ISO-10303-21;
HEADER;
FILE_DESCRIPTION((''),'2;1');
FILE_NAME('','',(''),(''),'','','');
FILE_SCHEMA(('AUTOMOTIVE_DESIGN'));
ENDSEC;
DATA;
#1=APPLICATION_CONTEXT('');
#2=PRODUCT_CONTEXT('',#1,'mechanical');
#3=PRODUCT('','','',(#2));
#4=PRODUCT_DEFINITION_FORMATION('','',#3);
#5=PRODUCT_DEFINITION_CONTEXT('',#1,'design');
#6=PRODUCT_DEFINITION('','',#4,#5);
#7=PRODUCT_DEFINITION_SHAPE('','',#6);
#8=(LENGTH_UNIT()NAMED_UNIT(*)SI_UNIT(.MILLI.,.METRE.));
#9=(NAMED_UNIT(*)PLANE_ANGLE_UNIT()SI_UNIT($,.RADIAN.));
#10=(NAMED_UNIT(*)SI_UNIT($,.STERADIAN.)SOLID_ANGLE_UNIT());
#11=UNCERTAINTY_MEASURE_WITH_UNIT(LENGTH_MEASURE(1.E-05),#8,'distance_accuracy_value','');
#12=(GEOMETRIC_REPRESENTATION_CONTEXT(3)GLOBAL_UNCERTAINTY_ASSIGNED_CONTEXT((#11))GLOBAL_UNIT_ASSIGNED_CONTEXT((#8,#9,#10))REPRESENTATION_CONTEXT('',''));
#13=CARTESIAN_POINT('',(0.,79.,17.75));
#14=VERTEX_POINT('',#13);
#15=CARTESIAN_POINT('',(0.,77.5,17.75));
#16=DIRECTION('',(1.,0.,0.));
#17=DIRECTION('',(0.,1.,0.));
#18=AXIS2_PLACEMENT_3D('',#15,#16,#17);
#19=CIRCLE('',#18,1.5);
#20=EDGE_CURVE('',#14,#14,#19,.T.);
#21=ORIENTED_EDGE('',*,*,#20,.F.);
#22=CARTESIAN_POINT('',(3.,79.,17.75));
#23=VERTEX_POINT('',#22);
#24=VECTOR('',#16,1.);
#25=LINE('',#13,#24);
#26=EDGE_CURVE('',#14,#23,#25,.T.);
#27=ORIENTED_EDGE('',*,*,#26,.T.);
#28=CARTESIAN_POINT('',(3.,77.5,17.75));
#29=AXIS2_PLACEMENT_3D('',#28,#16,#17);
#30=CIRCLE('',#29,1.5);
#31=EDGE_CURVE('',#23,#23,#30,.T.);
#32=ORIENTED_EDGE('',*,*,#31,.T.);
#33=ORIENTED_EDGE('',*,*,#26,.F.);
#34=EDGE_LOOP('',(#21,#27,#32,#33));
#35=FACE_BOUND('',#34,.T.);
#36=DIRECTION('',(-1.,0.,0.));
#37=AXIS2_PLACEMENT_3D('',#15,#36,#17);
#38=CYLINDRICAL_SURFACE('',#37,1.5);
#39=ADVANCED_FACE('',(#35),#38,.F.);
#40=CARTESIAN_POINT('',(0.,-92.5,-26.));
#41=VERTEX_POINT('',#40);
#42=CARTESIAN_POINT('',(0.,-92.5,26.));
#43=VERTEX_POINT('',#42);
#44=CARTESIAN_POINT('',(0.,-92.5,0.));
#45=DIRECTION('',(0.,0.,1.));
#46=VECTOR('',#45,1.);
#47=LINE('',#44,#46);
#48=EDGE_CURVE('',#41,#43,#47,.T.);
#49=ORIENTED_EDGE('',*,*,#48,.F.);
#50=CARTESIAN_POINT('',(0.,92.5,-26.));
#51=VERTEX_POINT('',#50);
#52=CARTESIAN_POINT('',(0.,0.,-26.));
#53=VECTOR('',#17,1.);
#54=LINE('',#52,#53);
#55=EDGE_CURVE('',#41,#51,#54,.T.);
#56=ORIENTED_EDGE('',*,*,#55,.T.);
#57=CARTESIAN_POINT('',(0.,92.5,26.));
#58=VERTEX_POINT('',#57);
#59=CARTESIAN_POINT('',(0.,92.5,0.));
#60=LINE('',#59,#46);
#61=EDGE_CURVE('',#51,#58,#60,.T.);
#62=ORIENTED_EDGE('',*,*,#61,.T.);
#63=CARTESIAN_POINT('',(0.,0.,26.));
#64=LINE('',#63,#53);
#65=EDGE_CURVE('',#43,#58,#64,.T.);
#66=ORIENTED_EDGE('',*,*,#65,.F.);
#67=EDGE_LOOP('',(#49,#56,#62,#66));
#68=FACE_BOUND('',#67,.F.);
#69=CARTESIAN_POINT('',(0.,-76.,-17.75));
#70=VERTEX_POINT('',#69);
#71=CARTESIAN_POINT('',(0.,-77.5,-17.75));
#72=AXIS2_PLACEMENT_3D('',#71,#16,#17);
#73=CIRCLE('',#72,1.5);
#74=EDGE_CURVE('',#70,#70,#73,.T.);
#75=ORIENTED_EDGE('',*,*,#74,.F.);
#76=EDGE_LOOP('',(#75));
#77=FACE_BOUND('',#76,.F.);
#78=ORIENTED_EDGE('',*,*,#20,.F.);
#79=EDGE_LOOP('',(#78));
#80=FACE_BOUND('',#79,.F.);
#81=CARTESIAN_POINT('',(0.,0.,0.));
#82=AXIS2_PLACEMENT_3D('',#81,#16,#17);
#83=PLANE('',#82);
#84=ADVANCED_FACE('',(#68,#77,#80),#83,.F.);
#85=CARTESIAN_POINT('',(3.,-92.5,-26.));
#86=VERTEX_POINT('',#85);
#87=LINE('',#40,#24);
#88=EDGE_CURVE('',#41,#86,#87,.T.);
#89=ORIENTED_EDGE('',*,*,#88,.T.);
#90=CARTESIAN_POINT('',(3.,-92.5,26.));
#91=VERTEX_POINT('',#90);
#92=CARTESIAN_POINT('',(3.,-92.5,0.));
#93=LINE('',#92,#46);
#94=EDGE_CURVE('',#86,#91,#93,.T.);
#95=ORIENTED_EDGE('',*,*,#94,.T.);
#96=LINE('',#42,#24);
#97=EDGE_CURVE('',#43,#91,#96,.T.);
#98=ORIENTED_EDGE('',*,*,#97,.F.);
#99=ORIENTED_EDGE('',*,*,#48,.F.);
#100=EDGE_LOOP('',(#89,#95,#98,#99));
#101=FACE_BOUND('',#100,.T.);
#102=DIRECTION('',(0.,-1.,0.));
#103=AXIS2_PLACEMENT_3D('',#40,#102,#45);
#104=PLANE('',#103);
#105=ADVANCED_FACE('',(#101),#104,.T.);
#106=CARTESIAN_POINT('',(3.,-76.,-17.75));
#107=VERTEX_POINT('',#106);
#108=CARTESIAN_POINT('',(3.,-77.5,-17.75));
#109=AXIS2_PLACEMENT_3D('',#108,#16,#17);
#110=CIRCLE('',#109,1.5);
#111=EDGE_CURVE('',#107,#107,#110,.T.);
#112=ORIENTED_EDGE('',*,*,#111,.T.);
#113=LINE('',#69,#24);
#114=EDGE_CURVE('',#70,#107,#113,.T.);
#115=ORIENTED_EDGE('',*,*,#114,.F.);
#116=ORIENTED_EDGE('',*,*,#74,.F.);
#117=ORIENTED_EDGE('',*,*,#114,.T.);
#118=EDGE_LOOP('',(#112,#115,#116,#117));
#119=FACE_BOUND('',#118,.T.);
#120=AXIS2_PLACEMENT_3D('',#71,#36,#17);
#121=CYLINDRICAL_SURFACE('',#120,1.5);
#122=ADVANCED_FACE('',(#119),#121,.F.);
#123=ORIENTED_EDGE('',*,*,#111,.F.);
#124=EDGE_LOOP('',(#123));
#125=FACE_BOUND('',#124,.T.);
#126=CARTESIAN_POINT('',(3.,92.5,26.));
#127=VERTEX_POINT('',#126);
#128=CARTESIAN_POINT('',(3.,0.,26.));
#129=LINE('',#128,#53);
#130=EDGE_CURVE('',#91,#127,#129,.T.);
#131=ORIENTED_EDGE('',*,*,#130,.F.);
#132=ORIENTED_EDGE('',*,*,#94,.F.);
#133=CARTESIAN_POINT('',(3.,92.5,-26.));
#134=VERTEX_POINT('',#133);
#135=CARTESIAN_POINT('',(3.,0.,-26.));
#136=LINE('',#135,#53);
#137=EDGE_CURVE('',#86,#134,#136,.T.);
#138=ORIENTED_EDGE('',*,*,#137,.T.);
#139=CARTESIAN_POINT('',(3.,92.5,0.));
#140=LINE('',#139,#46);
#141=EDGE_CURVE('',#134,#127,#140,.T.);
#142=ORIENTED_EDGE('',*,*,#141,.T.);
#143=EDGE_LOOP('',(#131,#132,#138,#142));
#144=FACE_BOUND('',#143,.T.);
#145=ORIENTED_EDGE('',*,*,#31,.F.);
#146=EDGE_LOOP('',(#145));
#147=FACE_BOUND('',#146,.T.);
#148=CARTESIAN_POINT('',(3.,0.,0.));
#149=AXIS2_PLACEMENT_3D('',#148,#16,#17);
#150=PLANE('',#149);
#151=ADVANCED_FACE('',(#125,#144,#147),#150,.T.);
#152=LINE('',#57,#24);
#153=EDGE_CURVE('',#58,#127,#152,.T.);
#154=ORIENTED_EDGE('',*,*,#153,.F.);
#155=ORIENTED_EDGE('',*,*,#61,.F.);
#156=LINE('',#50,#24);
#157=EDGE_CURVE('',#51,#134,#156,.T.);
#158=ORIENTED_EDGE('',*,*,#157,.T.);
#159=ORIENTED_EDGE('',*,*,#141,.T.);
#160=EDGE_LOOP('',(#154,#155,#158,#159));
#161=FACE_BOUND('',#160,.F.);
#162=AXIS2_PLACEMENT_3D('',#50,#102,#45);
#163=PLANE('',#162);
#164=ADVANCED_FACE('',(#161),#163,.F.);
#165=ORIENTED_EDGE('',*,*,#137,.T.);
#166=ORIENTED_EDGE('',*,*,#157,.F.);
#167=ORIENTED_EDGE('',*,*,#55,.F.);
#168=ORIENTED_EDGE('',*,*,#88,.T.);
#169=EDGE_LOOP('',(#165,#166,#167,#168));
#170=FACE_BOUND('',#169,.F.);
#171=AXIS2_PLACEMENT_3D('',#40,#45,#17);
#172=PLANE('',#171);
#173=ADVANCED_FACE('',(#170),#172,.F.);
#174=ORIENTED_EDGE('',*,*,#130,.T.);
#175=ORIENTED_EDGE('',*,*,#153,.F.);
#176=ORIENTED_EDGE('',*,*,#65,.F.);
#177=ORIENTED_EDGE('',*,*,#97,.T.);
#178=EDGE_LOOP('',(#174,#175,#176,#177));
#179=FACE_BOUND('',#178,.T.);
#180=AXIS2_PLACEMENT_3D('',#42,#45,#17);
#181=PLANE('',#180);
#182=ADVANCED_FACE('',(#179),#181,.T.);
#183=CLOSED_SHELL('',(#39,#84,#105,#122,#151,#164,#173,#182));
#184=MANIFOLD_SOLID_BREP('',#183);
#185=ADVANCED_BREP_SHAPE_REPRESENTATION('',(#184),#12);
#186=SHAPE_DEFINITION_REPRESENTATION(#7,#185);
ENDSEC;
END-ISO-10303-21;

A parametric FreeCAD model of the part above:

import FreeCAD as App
import Part
import Sketcher

V = App.Vector
Q = App.Units.Quantity

doc = App.newDocument("Part")
body = doc.addObject("PartDesign::Body", "Body")

sketch1 = doc.addObject("Sketcher::SketchObject", "Sketch")
body.addObject(sketch1)
sketch1.AttachmentSupport = (doc.YZ_Plane, [""])
sketch1.MapMode = "FlatFace"
sketch1.addGeometry([
    Part.LineSegment(V(-92.5, 26, 0), V(-92.5, -26, 0)),
    Part.LineSegment(V(-92.5, -26, 0), V(92.5, -26, 0)),
    Part.LineSegment(V(92.5, -26, 0), V(92.5, 26, 0)),
    Part.LineSegment(V(92.5, 26, 0), V(-92.5, 26, 0)),
    Part.Circle(V(-77.5, -17.8, 0), V(0, 0, 1), 1.5),
    Part.Circle(V(77.5, 17.8, 0), V(0, 0, 1), 1.5),
], False)
sketch1.addConstraint([
    Sketcher.Constraint("Coincident", 0, 2, 1, 1),
    Sketcher.Constraint("Coincident", 1, 2, 2, 1),
    Sketcher.Constraint("Coincident", 2, 2, 3, 1),
    Sketcher.Constraint("Coincident", 3, 2, 0, 1),
    Sketcher.Constraint("Vertical", 0),
    Sketcher.Constraint("Horizontal", 1),
    Sketcher.Constraint("Vertical", 2),
    Sketcher.Constraint("Horizontal", 3),
    Sketcher.Constraint("Equal", 4, 5),
    Sketcher.Constraint("Symmetric", 4, 3, 5, 3, -1, 1),
    Sketcher.Constraint("Symmetric", 0, 2, 2, 2, -1, 1),
    Sketcher.Constraint("Diameter", 4, Q("3 mm")),
    Sketcher.Constraint("DistanceX", 1, 1, 1, 2, Q("185 mm")),
    Sketcher.Constraint("DistanceY", 0, 2, 0, 1, Q("52 mm")),
    Sketcher.Constraint("DistanceX", 4, 3, 5, 3, Q("155 mm")),
    Sketcher.Constraint("DistanceY", 4, 3, 5, 3, Q("35.5 mm")),
])
pad1 = doc.addObject("PartDesign::Pad", "Pad")
body.addObject(pad1)
pad1.Profile = sketch1
pad1.Length = 3

doc.recompute()
